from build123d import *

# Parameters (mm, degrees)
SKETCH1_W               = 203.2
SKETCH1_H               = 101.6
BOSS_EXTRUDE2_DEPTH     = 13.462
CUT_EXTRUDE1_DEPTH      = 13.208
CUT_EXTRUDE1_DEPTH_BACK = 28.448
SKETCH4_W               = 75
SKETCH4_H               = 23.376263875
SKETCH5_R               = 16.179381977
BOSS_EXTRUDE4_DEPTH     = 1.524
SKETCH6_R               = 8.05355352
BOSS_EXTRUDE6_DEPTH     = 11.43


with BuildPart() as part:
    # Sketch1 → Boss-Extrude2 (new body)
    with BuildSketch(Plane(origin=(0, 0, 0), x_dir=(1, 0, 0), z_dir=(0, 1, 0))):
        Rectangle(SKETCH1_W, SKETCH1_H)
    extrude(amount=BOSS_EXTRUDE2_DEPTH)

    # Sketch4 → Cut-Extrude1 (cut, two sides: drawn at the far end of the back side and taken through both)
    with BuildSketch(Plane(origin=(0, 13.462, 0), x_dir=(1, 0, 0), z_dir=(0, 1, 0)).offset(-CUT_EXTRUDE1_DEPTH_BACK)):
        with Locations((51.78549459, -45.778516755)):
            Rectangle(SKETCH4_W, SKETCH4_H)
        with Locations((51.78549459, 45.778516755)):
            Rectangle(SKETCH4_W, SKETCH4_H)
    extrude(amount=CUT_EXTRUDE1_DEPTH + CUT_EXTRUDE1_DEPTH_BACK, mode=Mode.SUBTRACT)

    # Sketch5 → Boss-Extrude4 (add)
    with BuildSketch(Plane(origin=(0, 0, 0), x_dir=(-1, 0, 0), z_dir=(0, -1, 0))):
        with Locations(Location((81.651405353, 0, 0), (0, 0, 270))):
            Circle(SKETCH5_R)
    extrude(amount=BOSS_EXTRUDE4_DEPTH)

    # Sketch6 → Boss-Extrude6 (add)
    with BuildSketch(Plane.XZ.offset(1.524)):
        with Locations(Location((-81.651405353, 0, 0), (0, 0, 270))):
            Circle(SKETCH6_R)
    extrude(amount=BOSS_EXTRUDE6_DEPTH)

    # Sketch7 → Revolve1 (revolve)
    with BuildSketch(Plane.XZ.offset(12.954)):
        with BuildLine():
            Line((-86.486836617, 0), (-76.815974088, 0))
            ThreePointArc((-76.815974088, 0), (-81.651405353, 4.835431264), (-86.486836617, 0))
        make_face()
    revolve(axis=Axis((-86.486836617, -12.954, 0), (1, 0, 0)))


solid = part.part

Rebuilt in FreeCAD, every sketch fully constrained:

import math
import FreeCAD as App
import Part
import Sketcher
from FreeCAD import Vector
Q = App.Units.Quantity

doc = App.newDocument("Part")
body = doc.addObject("PartDesign::Body", "Body")

# Sketch on XZ plane
sketch1 = body.newObject("Sketcher::SketchObject", "Sketch")
sketch1.AttachmentSupport = (doc.getObject("XZ_Plane"), [""])
sketch1.MapMode = "FlatFace"
sketch1.addGeometry([
    Part.LineSegment(Vector(-101.6, -50.8, 0), Vector(-101.6, 50.8, 0)),
    Part.LineSegment(Vector(-101.6, 50.8, 0), Vector(101.6, 50.8, 0)),
    Part.LineSegment(Vector(101.6, 50.8, 0), Vector(101.6, -50.8, 0)),
    Part.LineSegment(Vector(101.6, -50.8, 0), Vector(-101.6, -50.8, 0)),
], False)
sketch1.addConstraint([
    Sketcher.Constraint("Coincident", 0, 2, 1, 1),
    Sketcher.Constraint("Coincident", 1, 2, 2, 1),
    Sketcher.Constraint("Coincident", 2, 2, 3, 1),
    Sketcher.Constraint("Coincident", 3, 2, 0, 1),
    Sketcher.Constraint("Vertical", 0),
    Sketcher.Constraint("Horizontal", 1),
    Sketcher.Constraint("Vertical", 2),
    Sketcher.Constraint("Horizontal", 3),
    Sketcher.Constraint("Symmetric", 0, 2, 2, 2, -1, 1),
    Sketcher.Constraint("DistanceX", 1, 1, 1, 2, Q("8 in")),
    Sketcher.Constraint("DistanceY", 0, 1, 0, 2, Q("4 in")),
])
pad1 = body.newObject("PartDesign::Pad", "Pad")
pad1.Profile = sketch1
pad1.Length = Q("0.53 in")
pad1.Reversed = True

# Sketch on XZ plane
sketch2 = body.newObject("Sketcher::SketchObject", "Sketch001")
sketch2.AttachmentSupport = (doc.getObject("XZ_Plane"), [""])
sketch2.MapMode = "FlatFace"
sketch2.AttachmentOffset = App.Placement(Vector(0, 0, -0.53 * 25.4), App.Rotation())
sketch2.addGeometry([
    Part.LineSegment(Vector(14.285495, 34.090385, 0), Vector(14.285495, 57.466649, 0)),  # 0
    Part.LineSegment(Vector(14.285495, 57.466649, 0), Vector(89.285495, 57.466649, 0)),  # 1
    Part.LineSegment(Vector(89.285495, 57.466649, 0), Vector(89.285495, 34.090385, 0)),  # 2
    Part.LineSegment(Vector(89.285495, 34.090385, 0), Vector(14.285495, 34.090385, 0)),  # 3
    Part.LineSegment(Vector(14.285495, -57.466649, 0), Vector(14.285495, -34.090385, 0)),  # 4
    Part.LineSegment(Vector(14.285495, -34.090385, 0), Vector(89.285495, -34.090385, 0)),  # 5
    Part.LineSegment(Vector(89.285495, -34.090385, 0), Vector(89.285495, -57.466649, 0)),  # 6
    Part.LineSegment(Vector(89.285495, -57.466649, 0), Vector(14.285495, -57.466649, 0)),  # 7
], False)
sketch2.addConstraint([
    Sketcher.Constraint("Coincident", 0, 2, 1, 1),
    Sketcher.Constraint("Coincident", 1, 2, 2, 1),
    Sketcher.Constraint("Coincident", 2, 2, 3, 1),
    Sketcher.Constraint("Coincident", 3, 2, 0, 1),
    Sketcher.Constraint("Coincident", 4, 2, 5, 1),
    Sketcher.Constraint("Coincident", 5, 2, 6, 1),
    Sketcher.Constraint("Coincident", 6, 2, 7, 1),
    Sketcher.Constraint("Coincident", 7, 2, 4, 1),
    Sketcher.Constraint("Vertical", 0),
    Sketcher.Constraint("Horizontal", 1),
    Sketcher.Constraint("Vertical", 2),
    Sketcher.Constraint("Horizontal", 3),
    Sketcher.Constraint("Vertical", 4),
    Sketcher.Constraint("Horizontal", 5),
    Sketcher.Constraint("Vertical", 6),
    Sketcher.Constraint("Horizontal", 7),
    Sketcher.Constraint("Symmetric", 3, 2, 4, 2, -1),
    Sketcher.Constraint("Symmetric", 1, 2, 6, 2, -1),
    Sketcher.Constraint("DistanceX", 1, 1, 1, 2, 75.0),
    Sketcher.Constraint("DistanceY", 0, 1, 0, 2, 23.376264),
    Sketcher.Constraint("DistanceY", -1, 1, 0, 2, 57.466649),
    Sketcher.Constraint("DistanceX", -1, 1, 0, 2, 14.285495),
])
pocket1 = body.newObject("PartDesign::Pocket", "Pocket")
pocket1.Profile = sketch2
pocket1.Type = "ThroughAll"
pocket1.Midplane = True

# Sketch on XZ plane
sketch3 = body.newObject("Sketcher::SketchObject", "Sketch002")
sketch3.AttachmentSupport = (doc.getObject("XZ_Plane"), [""])
sketch3.MapMode = "FlatFace"
sketch3.addGeometry(Part.Circle(Vector(-81.651405, 0, 0), Vector(0, 0, 1), 16.179382), False)
sketch3.addConstraint([
    Sketcher.Constraint("PointOnObject", 0, 3, -1),
    Sketcher.Constraint("Diameter", 0, 32.358764),
    Sketcher.Constraint("DistanceX", 0, 3, -1, 1, 81.651405),
])
pad2 = body.newObject("PartDesign::Pad", "Pad001")
pad2.Profile = sketch3
pad2.Length = Q("0.06 in")

# Sketch on XZ plane
sketch4 = body.newObject("Sketcher::SketchObject", "Sketch003")
sketch4.AttachmentSupport = (doc.getObject("XZ_Plane"), [""])
sketch4.MapMode = "FlatFace"
sketch4.AttachmentOffset = App.Placement(Vector(0, 0, 0.06 * 25.4), App.Rotation())
sketch4.addGeometry(Part.Circle(Vector(-81.651405, 0, 0), Vector(0, 0, 1), 8.053554), False)
sketch4.addConstraint([
    Sketcher.Constraint("PointOnObject", 0, 3, -1),
    Sketcher.Constraint("Diameter", 0, 16.107107),
    Sketcher.Constraint("DistanceX", 0, 3, -1, 1, 81.651405),
])
pad3 = body.newObject("PartDesign::Pad", "Pad002")
pad3.Profile = sketch4
pad3.Length = Q("0.45 in")

# Sketch on XZ plane
sketch5 = body.newObject("Sketcher::SketchObject", "Sketch004")
sketch5.AttachmentSupport = (doc.getObject("XZ_Plane"), [""])
sketch5.MapMode = "FlatFace"
sketch5.AttachmentOffset = App.Placement(Vector(0, 0, 0.51 * 25.4), App.Rotation())
sketch5.addGeometry([
    Part.LineSegment(Vector(-86.486837, 0, 0), Vector(-76.815974, 0, 0)),
    Part.ArcOfCircle(Part.Circle(Vector(-81.651405, 0, 0), Vector(0, 0, 1), 4.835431), math.radians(0), math.radians(180)),
], False)
sketch5.addConstraint([
    Sketcher.Constraint("Coincident", 0, 1, 1, 2),
    Sketcher.Constraint("Coincident", 1, 1, 0, 2),
    Sketcher.Constraint("Horizontal", 0),
    Sketcher.Constraint("PointOnObject", 1, 3, -1),
    Sketcher.Constraint("PointOnObject", 0, 1, -1),
    Sketcher.Constraint("Radius", 1, 4.835431),
    Sketcher.Constraint("DistanceX", 1, 3, -1, 1, 81.651405),
])
revolution = body.newObject("PartDesign::Revolution", "Revolution")
revolution.Profile = sketch5
revolution.ReferenceAxis = (sketch5, ["H_Axis"])
revolution.Angle = 360

doc.recompute()
